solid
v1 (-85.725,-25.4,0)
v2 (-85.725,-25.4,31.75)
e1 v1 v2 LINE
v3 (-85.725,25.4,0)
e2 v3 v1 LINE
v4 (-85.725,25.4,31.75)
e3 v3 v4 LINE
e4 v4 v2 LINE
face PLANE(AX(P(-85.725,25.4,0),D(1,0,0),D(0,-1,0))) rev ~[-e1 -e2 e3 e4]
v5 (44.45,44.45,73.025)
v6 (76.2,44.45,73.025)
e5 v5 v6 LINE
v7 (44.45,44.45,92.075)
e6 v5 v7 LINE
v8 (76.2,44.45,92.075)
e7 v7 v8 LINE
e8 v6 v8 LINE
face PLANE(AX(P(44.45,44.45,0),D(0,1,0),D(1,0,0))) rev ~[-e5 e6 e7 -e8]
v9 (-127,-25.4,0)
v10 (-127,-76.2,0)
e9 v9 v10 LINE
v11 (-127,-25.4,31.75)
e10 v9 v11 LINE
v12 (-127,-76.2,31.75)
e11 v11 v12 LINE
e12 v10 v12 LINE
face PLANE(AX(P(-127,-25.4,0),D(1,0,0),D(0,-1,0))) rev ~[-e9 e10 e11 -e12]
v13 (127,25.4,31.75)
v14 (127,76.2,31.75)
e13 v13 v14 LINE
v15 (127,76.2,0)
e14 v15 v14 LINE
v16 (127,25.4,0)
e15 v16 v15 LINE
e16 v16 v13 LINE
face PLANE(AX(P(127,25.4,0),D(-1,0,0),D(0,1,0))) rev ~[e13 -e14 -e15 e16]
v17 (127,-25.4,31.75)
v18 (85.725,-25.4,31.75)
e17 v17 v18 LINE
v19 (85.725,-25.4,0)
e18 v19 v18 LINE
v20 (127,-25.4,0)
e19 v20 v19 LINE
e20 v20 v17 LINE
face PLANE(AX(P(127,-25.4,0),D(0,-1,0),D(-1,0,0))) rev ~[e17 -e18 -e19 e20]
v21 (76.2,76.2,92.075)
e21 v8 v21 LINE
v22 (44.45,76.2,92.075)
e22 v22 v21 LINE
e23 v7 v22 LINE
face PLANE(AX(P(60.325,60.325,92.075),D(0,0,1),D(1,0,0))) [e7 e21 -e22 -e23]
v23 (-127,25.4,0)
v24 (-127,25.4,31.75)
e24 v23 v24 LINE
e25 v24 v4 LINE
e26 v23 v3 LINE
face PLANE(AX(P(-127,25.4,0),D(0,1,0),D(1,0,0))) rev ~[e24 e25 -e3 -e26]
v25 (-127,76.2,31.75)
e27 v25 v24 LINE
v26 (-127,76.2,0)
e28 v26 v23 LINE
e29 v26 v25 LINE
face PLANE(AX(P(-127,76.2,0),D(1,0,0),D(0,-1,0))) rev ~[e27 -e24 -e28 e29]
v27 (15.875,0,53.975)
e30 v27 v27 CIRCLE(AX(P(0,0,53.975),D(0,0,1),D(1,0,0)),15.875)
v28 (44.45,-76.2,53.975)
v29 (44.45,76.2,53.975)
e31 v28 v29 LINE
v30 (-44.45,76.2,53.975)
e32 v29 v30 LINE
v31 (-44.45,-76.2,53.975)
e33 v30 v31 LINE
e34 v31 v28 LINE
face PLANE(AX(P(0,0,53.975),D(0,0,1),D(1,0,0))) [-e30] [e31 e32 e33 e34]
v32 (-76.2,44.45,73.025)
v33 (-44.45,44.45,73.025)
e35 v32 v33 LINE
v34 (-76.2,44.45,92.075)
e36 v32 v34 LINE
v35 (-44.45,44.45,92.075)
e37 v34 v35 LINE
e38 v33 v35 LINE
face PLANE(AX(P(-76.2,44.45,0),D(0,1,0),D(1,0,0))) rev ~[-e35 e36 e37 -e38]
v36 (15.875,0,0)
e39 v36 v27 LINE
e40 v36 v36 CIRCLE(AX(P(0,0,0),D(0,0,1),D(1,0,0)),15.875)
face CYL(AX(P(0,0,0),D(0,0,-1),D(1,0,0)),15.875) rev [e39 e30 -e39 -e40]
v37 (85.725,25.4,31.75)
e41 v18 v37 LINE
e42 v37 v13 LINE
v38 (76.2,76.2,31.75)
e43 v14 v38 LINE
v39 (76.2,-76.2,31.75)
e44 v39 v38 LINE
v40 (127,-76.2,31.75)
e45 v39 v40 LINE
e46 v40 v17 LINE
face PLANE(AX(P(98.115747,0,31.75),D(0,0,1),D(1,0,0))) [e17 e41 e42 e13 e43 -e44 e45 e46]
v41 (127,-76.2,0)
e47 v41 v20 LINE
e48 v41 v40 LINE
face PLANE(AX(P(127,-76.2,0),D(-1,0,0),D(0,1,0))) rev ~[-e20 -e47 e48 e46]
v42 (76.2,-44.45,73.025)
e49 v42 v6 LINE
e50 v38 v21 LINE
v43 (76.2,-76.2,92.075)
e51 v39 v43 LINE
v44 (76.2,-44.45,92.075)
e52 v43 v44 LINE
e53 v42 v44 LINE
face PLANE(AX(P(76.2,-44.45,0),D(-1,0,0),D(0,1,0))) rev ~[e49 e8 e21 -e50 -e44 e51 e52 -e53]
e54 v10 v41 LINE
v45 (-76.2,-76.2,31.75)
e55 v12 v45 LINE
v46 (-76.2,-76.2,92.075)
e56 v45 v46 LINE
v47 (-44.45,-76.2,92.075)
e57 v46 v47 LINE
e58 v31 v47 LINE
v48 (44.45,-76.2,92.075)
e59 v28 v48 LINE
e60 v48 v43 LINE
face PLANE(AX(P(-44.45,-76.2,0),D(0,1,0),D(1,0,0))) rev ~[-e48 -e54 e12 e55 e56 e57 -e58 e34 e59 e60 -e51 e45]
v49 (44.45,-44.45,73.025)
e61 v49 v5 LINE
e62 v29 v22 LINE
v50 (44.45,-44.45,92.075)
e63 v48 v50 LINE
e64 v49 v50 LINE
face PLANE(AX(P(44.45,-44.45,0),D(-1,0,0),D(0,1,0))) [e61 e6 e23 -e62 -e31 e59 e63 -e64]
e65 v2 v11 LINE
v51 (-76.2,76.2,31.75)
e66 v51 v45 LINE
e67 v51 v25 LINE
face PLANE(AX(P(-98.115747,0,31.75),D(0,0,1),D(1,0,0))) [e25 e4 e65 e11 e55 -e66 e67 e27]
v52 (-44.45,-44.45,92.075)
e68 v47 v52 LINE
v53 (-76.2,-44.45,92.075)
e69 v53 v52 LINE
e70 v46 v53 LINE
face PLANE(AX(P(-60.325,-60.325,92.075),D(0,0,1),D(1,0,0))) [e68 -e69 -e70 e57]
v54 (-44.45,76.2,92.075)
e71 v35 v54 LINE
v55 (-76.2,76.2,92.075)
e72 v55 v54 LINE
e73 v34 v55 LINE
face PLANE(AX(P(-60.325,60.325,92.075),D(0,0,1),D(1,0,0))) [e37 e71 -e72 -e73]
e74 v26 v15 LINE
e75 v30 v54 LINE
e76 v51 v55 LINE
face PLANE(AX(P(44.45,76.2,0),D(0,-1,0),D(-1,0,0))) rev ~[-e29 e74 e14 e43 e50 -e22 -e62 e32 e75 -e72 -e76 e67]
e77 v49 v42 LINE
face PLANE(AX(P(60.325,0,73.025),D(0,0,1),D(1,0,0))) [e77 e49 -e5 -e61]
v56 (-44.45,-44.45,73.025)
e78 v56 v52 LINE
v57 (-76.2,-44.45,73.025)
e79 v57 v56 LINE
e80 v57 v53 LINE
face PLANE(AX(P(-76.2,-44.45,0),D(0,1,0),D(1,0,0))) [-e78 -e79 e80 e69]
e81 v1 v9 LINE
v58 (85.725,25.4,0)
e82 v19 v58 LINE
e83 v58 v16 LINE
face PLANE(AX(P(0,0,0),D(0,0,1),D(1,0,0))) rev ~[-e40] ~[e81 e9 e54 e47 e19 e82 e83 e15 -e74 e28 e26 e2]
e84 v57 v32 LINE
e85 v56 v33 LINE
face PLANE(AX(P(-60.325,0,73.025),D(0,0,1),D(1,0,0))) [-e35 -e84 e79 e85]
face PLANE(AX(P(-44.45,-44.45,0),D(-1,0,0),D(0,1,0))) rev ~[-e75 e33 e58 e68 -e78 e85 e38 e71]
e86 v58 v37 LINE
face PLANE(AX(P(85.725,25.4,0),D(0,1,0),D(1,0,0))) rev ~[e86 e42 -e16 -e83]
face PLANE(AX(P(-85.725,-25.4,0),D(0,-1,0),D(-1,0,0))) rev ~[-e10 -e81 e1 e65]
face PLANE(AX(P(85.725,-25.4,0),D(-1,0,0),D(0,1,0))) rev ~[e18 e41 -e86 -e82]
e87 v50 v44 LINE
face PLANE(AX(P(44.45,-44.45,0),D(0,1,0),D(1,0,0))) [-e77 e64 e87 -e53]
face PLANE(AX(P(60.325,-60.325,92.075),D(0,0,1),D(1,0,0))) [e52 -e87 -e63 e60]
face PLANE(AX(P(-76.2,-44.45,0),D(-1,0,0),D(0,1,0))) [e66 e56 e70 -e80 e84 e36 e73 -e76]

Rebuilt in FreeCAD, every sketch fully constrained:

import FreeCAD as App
import Part
import Sketcher
from FreeCAD import Vector
Q = App.Units.Quantity

doc = App.newDocument("Part")
body = doc.addObject("PartDesign::Body", "Body")
body.AllowCompound = True

# Sketch on XY plane
sketch1 = body.newObject("Sketcher::SketchObject", "Sketch")
sketch1.AttachmentSupport = (doc.getObject("XY_Plane"), [""])
sketch1.MapMode = "FlatFace"
sketch1.addGeometry([
    Part.LineSegment(Vector(-127, -76, 0), Vector(-76, -76, 0)),  # 0
    Part.LineSegment(Vector(-76, -76, 0), Vector(-76, 76, 0)),  # 1
    Part.LineSegment(Vector(-76, 76, 0), Vector(-127, 76, 0)),  # 2
    Part.LineSegment(Vector(-127, 76, 0), Vector(-127, 25, 0)),  # 3
    Part.LineSegment(Vector(-127, 25, 0), Vector(-86, 25, 0)),  # 4
    Part.LineSegment(Vector(-86, 25, 0), Vector(-86, -25, 0)),  # 5
    Part.LineSegment(Vector(-86, -25, 0), Vector(-127, -25, 0)),  # 6
    Part.LineSegment(Vector(-127, -25, 0), Vector(-127, -76, 0)),  # 7
    Part.LineSegment(Vector(76, -76, 0), Vector(127, -76, 0)),  # 8
    Part.LineSegment(Vector(127, -76, 0), Vector(127, -25, 0)),  # 9
    Part.LineSegment(Vector(127, -25, 0), Vector(86, -25, 0)),  # 10
    Part.LineSegment(Vector(86, -25, 0), Vector(86, 25, 0)),  # 11
    Part.LineSegment(Vector(86, 25, 0), Vector(127, 25, 0)),  # 12
    Part.LineSegment(Vector(127, 25, 0), Vector(127, 76, 0)),  # 13
    Part.LineSegment(Vector(127, 76, 0), Vector(76, 76, 0)),  # 14
    Part.LineSegment(Vector(76, 76, 0), Vector(76, -76, 0)),  # 15
], False)
sketch1.addConstraint([
    Sketcher.Constraint("Coincident", 0, 2, 1, 1),
    Sketcher.Constraint("Coincident", 1, 2, 2, 1),
    Sketcher.Constraint("Coincident", 2, 2, 3, 1),
    Sketcher.Constraint("Coincident", 3, 2, 4, 1),
    Sketcher.Constraint("Coincident", 4, 2, 5, 1),
    Sketcher.Constraint("Coincident", 5, 2, 6, 1),
    Sketcher.Constraint("Coincident", 6, 2, 7, 1),
    Sketcher.Constraint("Coincident", 7, 2, 0, 1),
    Sketcher.Constraint("Coincident", 8, 2, 9, 1),
    Sketcher.Constraint("Coincident", 9, 2, 10, 1),
    Sketcher.Constraint("Coincident", 10, 2, 11, 1),
    Sketcher.Constraint("Coincident", 11, 2, 12, 1),
    Sketcher.Constraint("Coincident", 12, 2, 13, 1),
    Sketcher.Constraint("Coincident", 13, 2, 14, 1),
    Sketcher.Constraint("Coincident", 14, 2, 15, 1),
    Sketcher.Constraint("Coincident", 15, 2, 8, 1),
    Sketcher.Constraint("Horizontal", 0),
    Sketcher.Constraint("Vertical", 1),
    Sketcher.Constraint("Horizontal", 2),
    Sketcher.Constraint("Vertical", 3),
    Sketcher.Constraint("Horizontal", 4),
    Sketcher.Constraint("Vertical", 5),
    Sketcher.Constraint("Horizontal", 6),
    Sketcher.Constraint("Vertical", 7),
    Sketcher.Constraint("Horizontal", 8),
    Sketcher.Constraint("Vertical", 9),
    Sketcher.Constraint("Horizontal", 10),
    Sketcher.Constraint("Vertical", 11),
    Sketcher.Constraint("Horizontal", 12),
    Sketcher.Constraint("Vertical", 13),
    Sketcher.Constraint("Horizontal", 14),
    Sketcher.Constraint("Vertical", 15),
    Sketcher.Constraint("Symmetric", 2, 2, 8, 2, -1, 1),
    Sketcher.Constraint("Symmetric", 4, 2, 10, 2, -1, 1),
    Sketcher.Constraint("Symmetric", 6, 2, 12, 2, -1, 1),
    Sketcher.Constraint("Symmetric", 0, 2, 14, 2, -1, 1),
    Sketcher.Constraint("Symmetric", 7, 2, 8, 2, -2),
    Sketcher.Constraint("Horizontal", 6, 2, 9, 2),
    Sketcher.Constraint("Equal", 14, 3),
    Sketcher.Constraint("Equal", 3, 5),
    Sketcher.Constraint("DistanceX", 0, 1, 0, 2, Q("2 in")),
    Sketcher.Constraint("DistanceX", 0, 2, -1, 1, Q("3 in")),
    Sketcher.Constraint("DistanceX", 4, 1, 4, 2, Q("1.625 in")),
])
pad1 = body.newObject("PartDesign::Pad", "Pad")
pad1.Profile = sketch1
pad1.Length = Q("1.25 in")

# Sketch on XY plane
sketch2 = body.newObject("Sketcher::SketchObject", "Sketch001")
sketch2.AttachmentSupport = (doc.getObject("XY_Plane"), [""])
sketch2.MapMode = "FlatFace"
sketch2.addGeometry([
    Part.LineSegment(Vector(-76, 76, 0), Vector(-76, 44, 0)),  # 0
    Part.LineSegment(Vector(-76, 44, 0), Vector(-44, 44, 0)),  # 1
    Part.LineSegment(Vector(-44, 44, 0), Vector(-44, 76, 0)),  # 2
    Part.LineSegment(Vector(-44, 76, 0), Vector(-76, 76, 0)),  # 3
    Part.LineSegment(Vector(-76, -44, 0), Vector(-76, -76, 0)),  # 4
    Part.LineSegment(Vector(-76, -76, 0), Vector(-44, -76, 0)),  # 5
    Part.LineSegment(Vector(-44, -76, 0), Vector(-44, -44, 0)),  # 6
    Part.LineSegment(Vector(-44, -44, 0), Vector(-76, -44, 0)),  # 7
    Part.LineSegment(Vector(44, -44, 0), Vector(44, -76, 0)),  # 8
    Part.LineSegment(Vector(44, -76, 0), Vector(76, -76, 0)),  # 9
    Part.LineSegment(Vector(76, -76, 0), Vector(76, -44, 0)),  # 10
    Part.LineSegment(Vector(76, -44, 0), Vector(44, -44, 0)),  # 11
    Part.LineSegment(Vector(44, 76, 0), Vector(44, 44, 0)),  # 12
    Part.LineSegment(Vector(44, 44, 0), Vector(76, 44, 0)),  # 13
    Part.LineSegment(Vector(76, 44, 0), Vector(76, 76, 0)),  # 14
    Part.LineSegment(Vector(76, 76, 0), Vector(44, 76, 0)),  # 15
], False)
sketch2.addConstraint([
    Sketcher.Constraint("Coincident", 0, 2, 1, 1),
    Sketcher.Constraint("Coincident", 1, 2, 2, 1),
    Sketcher.Constraint("Coincident", 2, 2, 3, 1),
    Sketcher.Constraint("Coincident", 3, 2, 0, 1),
    Sketcher.Constraint("Coincident", 4, 2, 5, 1),
    Sketcher.Constraint("Coincident", 5, 2, 6, 1),
    Sketcher.Constraint("Coincident", 6, 2, 7, 1),
    Sketcher.Constraint("Coincident", 7, 2, 4, 1),
    Sketcher.Constraint("Coincident", 8, 2, 9, 1),
    Sketcher.Constraint("Coincident", 9, 2, 10, 1),
    Sketcher.Constraint("Coincident", 10, 2, 11, 1),
    Sketcher.Constraint("Coincident", 11, 2, 8, 1),
    Sketcher.Constraint("Coincident", 12, 2, 13, 1),
    Sketcher.Constraint("Coincident", 13, 2, 14, 1),
    Sketcher.Constraint("Coincident", 14, 2, 15, 1),
    Sketcher.Constraint("Coincident", 15, 2, 12, 1),
    Sketcher.Constraint("Vertical", 0),
    Sketcher.Constraint("Horizontal", 1),
    Sketcher.Constraint("Vertical", 2),
    Sketcher.Constraint("Horizontal", 3),
    Sketcher.Constraint("Vertical", 4),
    Sketcher.Constraint("Horizontal", 5),
    Sketcher.Constraint("Vertical", 6),
    Sketcher.Constraint("Horizontal", 7),
    Sketcher.Constraint("Vertical", 8),
    Sketcher.Constraint("Horizontal", 9),
    Sketcher.Constraint("Vertical", 10),
    Sketcher.Constraint("Horizontal", 11),
    Sketcher.Constraint("Vertical", 12),
    Sketcher.Constraint("Horizontal", 13),
    Sketcher.Constraint("Vertical", 14),
    Sketcher.Constraint("Horizontal", 15),
    Sketcher.Constraint("Symmetric", 2, 2, 8, 2, -1, 1),
    Sketcher.Constraint("Symmetric", 0, 2, 10, 2, -1, 1),
    Sketcher.Constraint("Symmetric", 6, 2, 12, 2, -1, 1),
    Sketcher.Constraint("Symmetric", 4, 2, 14, 2, -1, 1),
    Sketcher.Constraint("Symmetric", 5, 2, 8, 2, -2),
    Sketcher.Constraint("Symmetric", 7, 2, 10, 2, -2),
    Sketcher.Constraint("Equal", 15, 0),
    Sketcher.Constraint("DistanceX", 0, 2, -1, 1, Q("3 in")),
    Sketcher.Constraint("DistanceY", -1, 1, 2, 2, Q("3 in")),
    Sketcher.Constraint("DistanceX", 1, 1, 1, 2, Q("1.25 in")),
])
pad2 = body.newObject("PartDesign::Pad", "Pad001")
pad2.Profile = sketch2
pad2.Length = Q("3.625 in")

# Sketch on XY plane
sketch3 = body.newObject("Sketcher::SketchObject", "Sketch002")
sketch3.AttachmentSupport = (doc.getObject("XY_Plane"), [""])
sketch3.MapMode = "FlatFace"
sketch3.addGeometry([
    Part.LineSegment(Vector(-76, 44, 0), Vector(-76, -44, 0)),  # 0
    Part.LineSegment(Vector(-76, -44, 0), Vector(-44, -44, 0)),  # 1
    Part.LineSegment(Vector(-44, -44, 0), Vector(-44, 44, 0)),  # 2
    Part.LineSegment(Vector(-44, 44, 0), Vector(-76, 44, 0)),  # 3
    Part.LineSegment(Vector(44, 44, 0), Vector(44, -44, 0)),  # 4
    Part.LineSegment(Vector(44, -44, 0), Vector(76, -44, 0)),  # 5
    Part.LineSegment(Vector(76, -44, 0), Vector(76, 44, 0)),  # 6
    Part.LineSegment(Vector(76, 44, 0), Vector(44, 44, 0)),  # 7
], False)
sketch3.addConstraint([
    Sketcher.Constraint("Coincident", 0, 2, 1, 1),
    Sketcher.Constraint("Coincident", 1, 2, 2, 1),
    Sketcher.Constraint("Coincident", 2, 2, 3, 1),
    Sketcher.Constraint("Coincident", 3, 2, 0, 1),
    Sketcher.Constraint("Coincident", 4, 2, 5, 1),
    Sketcher.Constraint("Coincident", 5, 2, 6, 1),
    Sketcher.Constraint("Coincident", 6, 2, 7, 1),
    Sketcher.Constraint("Coincident", 7, 2, 4, 1),
    Sketcher.Constraint("Vertical", 0),
    Sketcher.Constraint("Horizontal", 1),
    Sketcher.Constraint("Vertical", 2),
    Sketcher.Constraint("Horizontal", 3),
    Sketcher.Constraint("Vertical", 4),
    Sketcher.Constraint("Horizontal", 5),
    Sketcher.Constraint("Vertical", 6),
    Sketcher.Constraint("Horizontal", 7),
    Sketcher.Constraint("Symmetric", 2, 2, 4, 2, -1, 1),
    Sketcher.Constraint("Symmetric", 0, 2, 6, 2, -1, 1),
    Sketcher.Constraint("Horizontal", 1, 2, 4, 2),
    Sketcher.Constraint("DistanceY", 0, 2, 0, 1, Q("3.5 in")),
    Sketcher.Constraint("DistanceX", 0, 2, -1, 1, Q("3 in")),
    Sketcher.Constraint("DistanceX", 1, 1, 1, 2, Q("1.25 in")),
])
pad3 = body.newObject("PartDesign::Pad", "Pad002")
pad3.Profile = sketch3
pad3.Length = Q("2.875 in")

# Sketch on XY plane
sketch4 = body.newObject("Sketcher::SketchObject", "Sketch003")
sketch4.AttachmentSupport = (doc.getObject("XY_Plane"), [""])
sketch4.MapMode = "FlatFace"
sketch4.addGeometry([
    Part.LineSegment(Vector(-44, -76, 0), Vector(44, -76, 0)),  # 0
    Part.LineSegment(Vector(44, -76, 0), Vector(44, 76, 0)),  # 1
    Part.LineSegment(Vector(44, 76, 0), Vector(-44, 76, 0)),  # 2
    Part.LineSegment(Vector(-44, 76, 0), Vector(-44, -76, 0)),  # 3
    Part.Circle(Vector(0, 0, 0), Vector(0, 0, 1), 16),  # 4
], False)
sketch4.addConstraint([
    Sketcher.Constraint("Coincident", 0, 2, 1, 1),
    Sketcher.Constraint("Coincident", 1, 2, 2, 1),
    Sketcher.Constraint("Coincident", 2, 2, 3, 1),
    Sketcher.Constraint("Coincident", 3, 2, 0, 1),
    Sketcher.Constraint("Horizontal", 0),
    Sketcher.Constraint("Vertical", 1),
    Sketcher.Constraint("Horizontal", 2),
    Sketcher.Constraint("Vertical", 3),
    Sketcher.Constraint("Coincident", 4, 3, -1, 1),
    Sketcher.Constraint("Symmetric", 0, 2, 2, 2, -1, 1),
    Sketcher.Constraint("Diameter", 4, Q("1.25 in")),
    Sketcher.Constraint("DistanceY", 1, 1, 1, 2, Q("6 in")),
    Sketcher.Constraint("DistanceX", 0, 1, 0, 2, Q("3.5 in")),
])
pad4 = body.newObject("PartDesign::Pad", "Pad003")
pad4.Profile = sketch4
pad4.Length = Q("2.125 in")

doc.recompute()
